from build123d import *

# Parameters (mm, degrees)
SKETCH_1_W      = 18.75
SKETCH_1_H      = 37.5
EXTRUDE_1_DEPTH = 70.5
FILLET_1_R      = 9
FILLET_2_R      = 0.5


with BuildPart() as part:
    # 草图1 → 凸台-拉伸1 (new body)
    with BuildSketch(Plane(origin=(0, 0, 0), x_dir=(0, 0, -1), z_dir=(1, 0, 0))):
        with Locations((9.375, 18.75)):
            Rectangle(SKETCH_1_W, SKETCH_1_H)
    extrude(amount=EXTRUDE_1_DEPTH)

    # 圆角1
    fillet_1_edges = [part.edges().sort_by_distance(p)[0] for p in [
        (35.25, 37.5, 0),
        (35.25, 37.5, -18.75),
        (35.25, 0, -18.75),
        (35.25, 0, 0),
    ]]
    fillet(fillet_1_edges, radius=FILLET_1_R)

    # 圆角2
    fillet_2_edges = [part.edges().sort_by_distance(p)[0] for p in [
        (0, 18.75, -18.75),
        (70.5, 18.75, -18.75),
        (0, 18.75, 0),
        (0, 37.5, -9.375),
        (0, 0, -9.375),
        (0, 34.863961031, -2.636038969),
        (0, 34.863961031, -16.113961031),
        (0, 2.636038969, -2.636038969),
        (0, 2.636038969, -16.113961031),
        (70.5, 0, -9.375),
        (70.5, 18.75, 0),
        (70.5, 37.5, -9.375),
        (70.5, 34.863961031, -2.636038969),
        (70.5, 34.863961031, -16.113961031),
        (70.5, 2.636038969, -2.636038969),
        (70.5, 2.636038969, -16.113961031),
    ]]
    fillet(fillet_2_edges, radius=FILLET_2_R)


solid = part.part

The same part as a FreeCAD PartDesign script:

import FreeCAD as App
import Part
import Sketcher
from FreeCAD import Vector
Q = App.Units.Quantity


def edges_at(feature, points):
    """Names of the edges that pass closest to the given points."""
    edges = feature.Shape.Edges
    near = lambda p: min(range(len(edges)), key=lambda i: edges[i].distToShape(Part.Vertex(*p))[0])
    return sorted({f"Edge{near(p) + 1}" for p in points})

doc = App.newDocument("Part")
body = doc.addObject("PartDesign::Body", "Body")

# Sketch on YZ plane
sketch1 = doc.addObject("Sketcher::SketchObject", "Sketch")
body.addObject(sketch1)
sketch1.AttachmentSupport = (doc.YZ_Plane, [""])
sketch1.MapMode = "FlatFace"
sketch1.addGeometry([
    Part.LineSegment(Vector(37.5, 0, 0), Vector(0, 0, 0)),
    Part.LineSegment(Vector(0, 0, 0), Vector(0, -18.75, 0)),
    Part.LineSegment(Vector(0, -18.75, 0), Vector(37.5, -18.75, 0)),
    Part.LineSegment(Vector(37.5, -18.75, 0), Vector(37.5, 0, 0)),
], False)
sketch1.addConstraint([
    Sketcher.Constraint("Coincident", 0, 2, 1, 1),
    Sketcher.Constraint("Coincident", 1, 2, 2, 1),
    Sketcher.Constraint("Coincident", 2, 2, 3, 1),
    Sketcher.Constraint("Coincident", 3, 2, 0, 1),
    Sketcher.Constraint("Horizontal", 0),
    Sketcher.Constraint("Vertical", 1),
    Sketcher.Constraint("Horizontal", 2),
    Sketcher.Constraint("Vertical", 3),
    Sketcher.Constraint("Coincident", 0, 2, -1, 1),
    Sketcher.Constraint("DistanceX", 0, 2, 0, 1, Q("37.5 mm")),
    Sketcher.Constraint("DistanceY", 1, 2, 1, 1, Q("18.75 mm")),
])
pad1 = doc.addObject("PartDesign::Pad", "Pad")
body.addObject(pad1)
pad1.Profile = sketch1
pad1.Length = 70.5
doc.recompute()

fillet = doc.addObject("PartDesign::Fillet", "Fillet")
body.addObject(fillet)
fillet.Base = (pad1, edges_at(pad1, [
    (35.25, 37.5, 0),
    (35.25, 37.5, -18.75),
    (35.25, 0, -18.75),
    (35.25, 0, 0),
]))
fillet.Radius = 9
doc.recompute()

fillet2 = doc.addObject("PartDesign::Fillet", "Fillet001")
body.addObject(fillet2)
fillet2.Base = (fillet, edges_at(fillet, [
    (0, 18.75, -18.75),
    (70.5, 18.75, -18.75),
    (0, 18.75, 0),
    (0, 37.5, -9.375),
    (0, 0, -9.375),
    (0, 34.864, -2.636),
    (0, 34.864, -16.114),
    (0, 2.636, -2.636),
    (0, 2.636, -16.114),
    (70.5, 0, -9.375),
    (70.5, 18.75, 0),
    (70.5, 37.5, -9.375),
    (70.5, 34.864, -2.636),
    (70.5, 34.864, -16.114),
    (70.5, 2.636, -2.636),
    (70.5, 2.636, -16.114),
]))
fillet2.Radius = 0.5

doc.recompute()
